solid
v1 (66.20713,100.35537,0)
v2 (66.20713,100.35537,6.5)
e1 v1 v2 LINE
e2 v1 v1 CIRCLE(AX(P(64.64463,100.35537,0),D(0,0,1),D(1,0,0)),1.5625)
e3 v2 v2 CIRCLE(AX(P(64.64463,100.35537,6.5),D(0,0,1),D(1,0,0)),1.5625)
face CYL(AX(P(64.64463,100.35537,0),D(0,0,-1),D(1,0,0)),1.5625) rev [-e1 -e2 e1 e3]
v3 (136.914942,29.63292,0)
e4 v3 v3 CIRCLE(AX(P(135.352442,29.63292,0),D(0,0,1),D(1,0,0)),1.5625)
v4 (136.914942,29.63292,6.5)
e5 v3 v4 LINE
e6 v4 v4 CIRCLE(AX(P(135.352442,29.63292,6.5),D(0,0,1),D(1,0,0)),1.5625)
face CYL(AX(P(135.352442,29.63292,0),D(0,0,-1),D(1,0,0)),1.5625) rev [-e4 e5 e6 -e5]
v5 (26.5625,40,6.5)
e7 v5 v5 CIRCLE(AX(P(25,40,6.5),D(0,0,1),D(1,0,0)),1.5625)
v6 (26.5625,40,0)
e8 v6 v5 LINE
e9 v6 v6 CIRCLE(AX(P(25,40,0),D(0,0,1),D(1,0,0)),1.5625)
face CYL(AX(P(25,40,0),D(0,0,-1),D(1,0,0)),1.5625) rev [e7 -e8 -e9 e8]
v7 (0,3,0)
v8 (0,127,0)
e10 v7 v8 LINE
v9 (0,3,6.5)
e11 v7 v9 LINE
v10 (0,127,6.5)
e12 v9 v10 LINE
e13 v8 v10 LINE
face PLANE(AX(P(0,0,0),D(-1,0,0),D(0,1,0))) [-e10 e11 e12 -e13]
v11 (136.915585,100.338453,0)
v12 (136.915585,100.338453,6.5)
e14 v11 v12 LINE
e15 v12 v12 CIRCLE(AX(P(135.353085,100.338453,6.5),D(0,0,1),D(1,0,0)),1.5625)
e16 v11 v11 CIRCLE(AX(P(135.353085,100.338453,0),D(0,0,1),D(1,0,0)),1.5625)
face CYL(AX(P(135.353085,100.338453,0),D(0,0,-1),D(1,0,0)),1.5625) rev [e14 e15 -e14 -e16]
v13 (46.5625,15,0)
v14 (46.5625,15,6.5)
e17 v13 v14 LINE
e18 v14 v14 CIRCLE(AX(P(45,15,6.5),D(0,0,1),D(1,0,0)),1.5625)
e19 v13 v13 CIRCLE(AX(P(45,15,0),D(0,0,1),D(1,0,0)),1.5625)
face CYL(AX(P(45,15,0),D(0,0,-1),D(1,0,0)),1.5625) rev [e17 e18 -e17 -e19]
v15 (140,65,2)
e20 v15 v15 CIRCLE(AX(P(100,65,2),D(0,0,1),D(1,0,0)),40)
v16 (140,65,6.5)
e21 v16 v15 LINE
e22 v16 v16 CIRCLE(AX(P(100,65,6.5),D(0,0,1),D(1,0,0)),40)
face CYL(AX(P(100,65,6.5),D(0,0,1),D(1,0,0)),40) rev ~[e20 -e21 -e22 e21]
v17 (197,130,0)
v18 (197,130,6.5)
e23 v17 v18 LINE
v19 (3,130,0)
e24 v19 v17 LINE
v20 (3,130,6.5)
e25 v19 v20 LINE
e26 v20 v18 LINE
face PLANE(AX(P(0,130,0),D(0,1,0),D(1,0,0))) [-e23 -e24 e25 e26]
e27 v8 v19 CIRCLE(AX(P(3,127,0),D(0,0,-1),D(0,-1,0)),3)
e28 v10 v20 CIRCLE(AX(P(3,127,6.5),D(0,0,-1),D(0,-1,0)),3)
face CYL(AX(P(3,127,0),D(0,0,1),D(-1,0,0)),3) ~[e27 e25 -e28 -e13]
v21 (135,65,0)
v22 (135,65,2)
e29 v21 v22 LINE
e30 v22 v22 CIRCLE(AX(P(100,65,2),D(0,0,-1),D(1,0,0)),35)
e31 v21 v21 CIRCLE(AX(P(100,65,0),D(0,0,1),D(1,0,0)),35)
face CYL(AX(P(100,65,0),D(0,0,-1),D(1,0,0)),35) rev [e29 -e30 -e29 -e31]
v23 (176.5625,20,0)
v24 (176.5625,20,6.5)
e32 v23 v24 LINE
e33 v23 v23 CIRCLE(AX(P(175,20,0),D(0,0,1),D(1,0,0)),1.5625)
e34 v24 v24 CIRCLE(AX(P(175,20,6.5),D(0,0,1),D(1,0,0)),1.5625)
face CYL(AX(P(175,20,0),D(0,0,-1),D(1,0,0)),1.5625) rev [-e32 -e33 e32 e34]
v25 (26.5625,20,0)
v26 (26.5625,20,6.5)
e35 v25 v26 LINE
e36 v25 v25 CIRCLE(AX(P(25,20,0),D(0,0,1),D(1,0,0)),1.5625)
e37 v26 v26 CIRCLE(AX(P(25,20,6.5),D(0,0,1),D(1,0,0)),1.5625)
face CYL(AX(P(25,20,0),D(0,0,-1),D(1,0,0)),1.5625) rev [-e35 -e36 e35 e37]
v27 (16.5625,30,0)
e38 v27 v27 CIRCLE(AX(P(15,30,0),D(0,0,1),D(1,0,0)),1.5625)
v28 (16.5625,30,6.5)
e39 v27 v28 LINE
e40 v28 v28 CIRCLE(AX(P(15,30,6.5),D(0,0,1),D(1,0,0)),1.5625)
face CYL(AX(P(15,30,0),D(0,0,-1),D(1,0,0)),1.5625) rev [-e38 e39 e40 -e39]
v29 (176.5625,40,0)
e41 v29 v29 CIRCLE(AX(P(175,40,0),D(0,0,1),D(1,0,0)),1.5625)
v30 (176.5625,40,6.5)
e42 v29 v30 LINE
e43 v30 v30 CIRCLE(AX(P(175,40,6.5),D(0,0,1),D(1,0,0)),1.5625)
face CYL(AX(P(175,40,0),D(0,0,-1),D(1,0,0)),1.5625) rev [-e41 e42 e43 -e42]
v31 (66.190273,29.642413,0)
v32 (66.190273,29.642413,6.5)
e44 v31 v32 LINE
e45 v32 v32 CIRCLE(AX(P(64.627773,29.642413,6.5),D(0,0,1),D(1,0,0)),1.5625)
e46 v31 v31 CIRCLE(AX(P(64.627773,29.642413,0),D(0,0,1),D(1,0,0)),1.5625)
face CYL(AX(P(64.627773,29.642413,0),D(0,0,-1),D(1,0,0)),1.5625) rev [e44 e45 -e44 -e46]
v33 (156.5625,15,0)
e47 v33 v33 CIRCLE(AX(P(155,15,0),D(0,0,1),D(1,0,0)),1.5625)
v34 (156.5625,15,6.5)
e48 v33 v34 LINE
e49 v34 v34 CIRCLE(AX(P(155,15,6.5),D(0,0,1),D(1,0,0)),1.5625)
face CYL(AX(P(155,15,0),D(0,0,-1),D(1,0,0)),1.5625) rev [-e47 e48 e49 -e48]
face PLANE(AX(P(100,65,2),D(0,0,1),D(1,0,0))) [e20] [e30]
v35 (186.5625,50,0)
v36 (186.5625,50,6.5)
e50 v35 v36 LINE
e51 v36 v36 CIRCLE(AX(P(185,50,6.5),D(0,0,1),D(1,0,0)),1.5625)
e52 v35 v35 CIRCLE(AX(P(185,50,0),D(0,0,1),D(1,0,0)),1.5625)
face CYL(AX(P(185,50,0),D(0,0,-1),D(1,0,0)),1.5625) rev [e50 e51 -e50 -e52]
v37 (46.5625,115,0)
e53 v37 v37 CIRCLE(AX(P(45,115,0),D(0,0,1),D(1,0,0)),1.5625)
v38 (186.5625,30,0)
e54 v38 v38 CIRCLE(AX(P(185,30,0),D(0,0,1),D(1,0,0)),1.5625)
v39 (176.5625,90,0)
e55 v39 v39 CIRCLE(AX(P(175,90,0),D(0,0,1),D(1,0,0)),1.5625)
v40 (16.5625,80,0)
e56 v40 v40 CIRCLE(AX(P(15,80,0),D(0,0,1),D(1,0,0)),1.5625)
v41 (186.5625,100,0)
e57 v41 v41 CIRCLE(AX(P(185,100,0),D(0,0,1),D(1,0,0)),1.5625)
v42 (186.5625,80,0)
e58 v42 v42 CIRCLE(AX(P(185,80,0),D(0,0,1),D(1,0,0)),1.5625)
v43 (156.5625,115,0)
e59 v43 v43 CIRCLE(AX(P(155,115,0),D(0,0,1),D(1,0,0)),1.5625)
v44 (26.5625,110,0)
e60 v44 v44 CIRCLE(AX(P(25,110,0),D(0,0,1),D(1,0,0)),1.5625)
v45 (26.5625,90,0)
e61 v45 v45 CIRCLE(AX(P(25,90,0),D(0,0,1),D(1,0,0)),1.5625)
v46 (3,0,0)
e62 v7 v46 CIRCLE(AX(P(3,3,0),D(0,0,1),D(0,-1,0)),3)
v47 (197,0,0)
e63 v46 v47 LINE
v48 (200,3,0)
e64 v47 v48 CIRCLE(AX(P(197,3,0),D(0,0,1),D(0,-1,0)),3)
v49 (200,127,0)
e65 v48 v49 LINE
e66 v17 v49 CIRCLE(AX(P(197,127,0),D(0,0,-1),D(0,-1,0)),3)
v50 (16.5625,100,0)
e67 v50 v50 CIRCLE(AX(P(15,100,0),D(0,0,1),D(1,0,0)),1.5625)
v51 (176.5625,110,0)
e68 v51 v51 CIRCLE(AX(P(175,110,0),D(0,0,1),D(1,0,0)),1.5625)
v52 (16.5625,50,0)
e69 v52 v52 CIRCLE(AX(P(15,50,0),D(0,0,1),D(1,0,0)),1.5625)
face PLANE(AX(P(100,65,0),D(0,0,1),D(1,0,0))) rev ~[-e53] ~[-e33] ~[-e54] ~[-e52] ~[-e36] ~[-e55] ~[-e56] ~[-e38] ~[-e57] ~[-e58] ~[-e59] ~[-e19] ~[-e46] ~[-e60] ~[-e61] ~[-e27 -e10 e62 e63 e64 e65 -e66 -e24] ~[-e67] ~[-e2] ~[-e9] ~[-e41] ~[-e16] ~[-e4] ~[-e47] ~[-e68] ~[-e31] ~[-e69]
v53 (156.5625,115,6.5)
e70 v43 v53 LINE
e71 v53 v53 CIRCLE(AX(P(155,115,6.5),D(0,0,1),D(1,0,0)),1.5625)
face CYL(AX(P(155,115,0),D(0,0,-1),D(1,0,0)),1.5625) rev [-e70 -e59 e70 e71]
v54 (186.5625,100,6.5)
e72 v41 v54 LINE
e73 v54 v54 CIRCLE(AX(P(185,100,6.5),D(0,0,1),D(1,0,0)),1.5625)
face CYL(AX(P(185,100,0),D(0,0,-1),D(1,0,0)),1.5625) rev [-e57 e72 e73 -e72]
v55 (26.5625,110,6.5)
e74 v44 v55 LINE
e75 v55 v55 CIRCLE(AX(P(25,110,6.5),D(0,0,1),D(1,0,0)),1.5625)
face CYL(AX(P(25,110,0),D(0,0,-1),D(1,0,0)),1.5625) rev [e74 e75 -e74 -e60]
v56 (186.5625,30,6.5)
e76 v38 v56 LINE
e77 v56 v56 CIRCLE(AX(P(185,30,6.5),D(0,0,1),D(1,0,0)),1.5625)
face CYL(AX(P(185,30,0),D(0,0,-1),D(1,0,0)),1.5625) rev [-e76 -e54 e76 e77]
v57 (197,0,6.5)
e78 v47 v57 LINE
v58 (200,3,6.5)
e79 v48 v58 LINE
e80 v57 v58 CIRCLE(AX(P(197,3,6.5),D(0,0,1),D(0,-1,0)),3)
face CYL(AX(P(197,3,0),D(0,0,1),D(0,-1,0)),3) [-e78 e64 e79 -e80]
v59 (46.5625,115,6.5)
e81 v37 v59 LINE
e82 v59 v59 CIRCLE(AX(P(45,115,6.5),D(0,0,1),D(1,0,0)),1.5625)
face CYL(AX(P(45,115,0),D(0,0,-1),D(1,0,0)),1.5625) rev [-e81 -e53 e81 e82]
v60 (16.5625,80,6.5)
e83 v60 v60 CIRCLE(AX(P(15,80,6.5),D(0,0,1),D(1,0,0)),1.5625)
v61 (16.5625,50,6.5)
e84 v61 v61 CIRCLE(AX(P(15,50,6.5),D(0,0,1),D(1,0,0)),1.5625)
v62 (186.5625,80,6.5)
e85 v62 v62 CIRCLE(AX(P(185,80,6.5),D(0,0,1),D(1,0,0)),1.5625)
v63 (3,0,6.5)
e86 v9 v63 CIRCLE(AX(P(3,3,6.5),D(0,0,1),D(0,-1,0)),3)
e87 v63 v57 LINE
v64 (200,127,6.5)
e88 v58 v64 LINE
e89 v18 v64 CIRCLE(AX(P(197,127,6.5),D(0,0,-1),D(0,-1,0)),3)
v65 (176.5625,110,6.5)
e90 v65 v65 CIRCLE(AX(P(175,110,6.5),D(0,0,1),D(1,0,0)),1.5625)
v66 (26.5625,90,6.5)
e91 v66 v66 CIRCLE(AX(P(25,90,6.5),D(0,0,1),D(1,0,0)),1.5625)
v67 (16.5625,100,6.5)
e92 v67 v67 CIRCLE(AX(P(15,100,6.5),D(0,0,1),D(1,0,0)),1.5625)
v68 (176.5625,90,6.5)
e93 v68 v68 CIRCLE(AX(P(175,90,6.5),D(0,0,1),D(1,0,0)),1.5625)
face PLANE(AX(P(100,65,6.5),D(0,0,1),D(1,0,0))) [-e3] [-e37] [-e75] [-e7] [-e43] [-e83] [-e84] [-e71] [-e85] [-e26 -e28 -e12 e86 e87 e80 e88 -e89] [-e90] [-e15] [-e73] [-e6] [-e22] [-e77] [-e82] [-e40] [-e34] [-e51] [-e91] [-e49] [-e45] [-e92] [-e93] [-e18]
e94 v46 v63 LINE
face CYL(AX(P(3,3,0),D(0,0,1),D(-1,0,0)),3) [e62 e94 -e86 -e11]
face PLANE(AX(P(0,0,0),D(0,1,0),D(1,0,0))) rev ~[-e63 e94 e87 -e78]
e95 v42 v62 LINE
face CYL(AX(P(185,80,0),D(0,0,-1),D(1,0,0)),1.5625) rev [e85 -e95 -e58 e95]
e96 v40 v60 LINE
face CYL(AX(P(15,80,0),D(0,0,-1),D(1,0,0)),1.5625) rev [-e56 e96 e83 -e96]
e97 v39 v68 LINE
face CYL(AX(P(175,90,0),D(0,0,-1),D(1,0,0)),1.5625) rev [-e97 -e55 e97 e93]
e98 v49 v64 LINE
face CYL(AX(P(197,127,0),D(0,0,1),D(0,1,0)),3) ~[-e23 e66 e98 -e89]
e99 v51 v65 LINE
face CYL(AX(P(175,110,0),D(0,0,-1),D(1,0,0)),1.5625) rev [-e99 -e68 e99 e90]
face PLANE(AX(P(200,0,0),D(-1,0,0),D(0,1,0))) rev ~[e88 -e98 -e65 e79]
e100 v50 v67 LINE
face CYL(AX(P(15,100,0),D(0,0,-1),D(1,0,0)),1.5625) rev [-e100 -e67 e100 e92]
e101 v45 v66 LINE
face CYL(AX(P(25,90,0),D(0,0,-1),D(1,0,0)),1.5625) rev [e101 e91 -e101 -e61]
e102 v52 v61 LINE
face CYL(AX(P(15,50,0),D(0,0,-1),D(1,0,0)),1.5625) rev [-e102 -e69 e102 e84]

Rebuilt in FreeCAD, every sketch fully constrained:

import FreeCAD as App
import Part
import Sketcher

V = App.Vector
Q = App.Units.Quantity


def edges_at(feature, points):
    """Names of the edges that pass closest to the given points."""
    edges = feature.Shape.Edges
    near = lambda p: min(range(len(edges)), key=lambda i: edges[i].distToShape(Part.Vertex(*p))[0])
    return sorted({f"Edge{near(p) + 1}" for p in points})


def add_polygon(sketch, points):
    """Adds a closed chain of lines whose ends are joined by coincident constraints."""
    first, n = sketch.GeometryCount, len(points)
    for a, b in zip(points, points[1:] + points[:1]):
        sketch.addGeometry(Part.LineSegment(App.Vector(*a, 0), App.Vector(*b, 0)), False)
    for i in range(n):
        sketch.addConstraint(Sketcher.Constraint("Coincident", first + i, 2, first + (i + 1) % n, 1))

doc = App.newDocument("Part")
body = doc.addObject("PartDesign::Body", "Body")

# Sketch on XY plane
sketch1 = doc.addObject("Sketcher::SketchObject", "Sketch")
body.addObject(sketch1)
sketch1.AttachmentSupport = (doc.XY_Plane, [""])
sketch1.MapMode = "FlatFace"
add_polygon(sketch1, [(0, 130), (0, 0), (200, 0), (200, 130)])  # lines 0-3
sketch1.addGeometry(Part.Circle(V(25, 20, 0), V(0, 0, 1), 1.5625), False)  # 4
sketch1.addGeometry(Part.Circle(V(45, 15, 0), V(0, 0, 1), 1.5625), False)  # 5
sketch1.addGeometry(Part.Circle(V(15, 30, 0), V(0, 0, 1), 1.5625), False)  # 6
sketch1.addGeometry(Part.Circle(V(64.627773, 29.642413, 0), V(0, 0, 1), 1.5625), False)  # 7
sketch1.addGeometry(Part.Circle(V(25, 40, 0), V(0, 0, 1), 1.5625), False)  # 8
sketch1.addGeometry(Part.Circle(V(15, 50, 0), V(0, 0, 1), 1.5625), False)  # 9
sketch1.addGeometry(Part.Circle(V(135.352442, 29.63292, 0), V(0, 0, 1), 1.5625), False)  # 10
sketch1.addGeometry(Part.Circle(V(155, 15, 0), V(0, 0, 1), 1.5625), False)  # 11
sketch1.addGeometry(Part.Circle(V(175, 20, 0), V(0, 0, 1), 1.5625), False)  # 12
sketch1.addGeometry(Part.Circle(V(185, 30, 0), V(0, 0, 1), 1.5625), False)  # 13
sketch1.addGeometry(Part.Circle(V(175, 40, 0), V(0, 0, 1), 1.5625), False)  # 14
sketch1.addGeometry(Part.Circle(V(185, 50, 0), V(0, 0, 1), 1.5625), False)  # 15
sketch1.addGeometry(Part.Circle(V(15, 80, 0), V(0, 0, 1), 1.5625), False)  # 16
sketch1.addGeometry(Part.Circle(V(25, 90, 0), V(0, 0, 1), 1.5625), False)  # 17
sketch1.addGeometry(Part.Circle(V(15, 100, 0), V(0, 0, 1), 1.5625), False)  # 18
sketch1.addGeometry(Part.Circle(V(25, 110, 0), V(0, 0, 1), 1.5625), False)  # 19
sketch1.addGeometry(Part.Circle(V(45, 115, 0), V(0, 0, 1), 1.5625), False)  # 20
sketch1.addGeometry(Part.Circle(V(64.64463, 100.35537, 0), V(0, 0, 1), 1.5625), False)  # 21
sketch1.addGeometry(Part.Circle(V(100, 65, 0), V(0, 0, 1), 35), False)  # 22
sketch1.addGeometry(Part.Circle(V(185, 80, 0), V(0, 0, 1), 1.5625), False)  # 23
sketch1.addGeometry(Part.Circle(V(175, 90, 0), V(0, 0, 1), 1.5625), False)  # 24
sketch1.addGeometry(Part.Circle(V(135.353085, 100.338453, 0), V(0, 0, 1), 1.5625), False)  # 25
sketch1.addGeometry(Part.Circle(V(185, 100, 0), V(0, 0, 1), 1.5625), False)  # 26
sketch1.addGeometry(Part.Circle(V(155, 115, 0), V(0, 0, 1), 1.5625), False)  # 27
sketch1.addGeometry(Part.Circle(V(175, 110, 0), V(0, 0, 1), 1.5625), False)  # 28
sketch1.addConstraint(Sketcher.Constraint("Vertical", 0))
sketch1.addConstraint(Sketcher.Constraint("Horizontal", 1))
sketch1.addConstraint(Sketcher.Constraint("Vertical", 2))
sketch1.addConstraint(Sketcher.Constraint("Horizontal", 3))
sketch1.addConstraint(Sketcher.Constraint("Coincident", 0, 2, -1, 1))
sketch1.addConstraint(Sketcher.Constraint("Equal", 4, 5))
sketch1.addConstraint(Sketcher.Constraint("Equal", 5, 6))
sketch1.addConstraint(Sketcher.Constraint("Equal", 6, 7))
sketch1.addConstraint(Sketcher.Constraint("Equal", 7, 8))
sketch1.addConstraint(Sketcher.Constraint("Equal", 8, 9))
sketch1.addConstraint(Sketcher.Constraint("Equal", 9, 10))
sketch1.addConstraint(Sketcher.Constraint("Equal", 10, 11))
sketch1.addConstraint(Sketcher.Constraint("Equal", 11, 12))
sketch1.addConstraint(Sketcher.Constraint("Equal", 12, 13))
sketch1.addConstraint(Sketcher.Constraint("Equal", 13, 14))
sketch1.addConstraint(Sketcher.Constraint("Equal", 14, 15))
sketch1.addConstraint(Sketcher.Constraint("Equal", 15, 16))
sketch1.addConstraint(Sketcher.Constraint("Equal", 16, 17))
sketch1.addConstraint(Sketcher.Constraint("Equal", 17, 18))
sketch1.addConstraint(Sketcher.Constraint("Equal", 18, 19))
sketch1.addConstraint(Sketcher.Constraint("Equal", 19, 20))
sketch1.addConstraint(Sketcher.Constraint("Equal", 20, 21))
sketch1.addConstraint(Sketcher.Constraint("Equal", 21, 23))
sketch1.addConstraint(Sketcher.Constraint("Equal", 23, 24))
sketch1.addConstraint(Sketcher.Constraint("Equal", 24, 25))
sketch1.addConstraint(Sketcher.Constraint("Equal", 25, 26))
sketch1.addConstraint(Sketcher.Constraint("Equal", 26, 27))
sketch1.addConstraint(Sketcher.Constraint("Equal", 27, 28))
sketch1.addConstraint(Sketcher.Constraint("Horizontal", 5, 3, 11, 3))
sketch1.addConstraint(Sketcher.Constraint("Horizontal", 4, 3, 12, 3))
sketch1.addConstraint(Sketcher.Constraint("Horizontal", 6, 3, 13, 3))
sketch1.addConstraint(Sketcher.Constraint("Horizontal", 8, 3, 14, 3))
sketch1.addConstraint(Sketcher.Constraint("Horizontal", 9, 3, 15, 3))
sketch1.addConstraint(Sketcher.Constraint("Horizontal", 16, 3, 23, 3))
sketch1.addConstraint(Sketcher.Constraint("Horizontal", 17, 3, 24, 3))
sketch1.addConstraint(Sketcher.Constraint("Horizontal", 18, 3, 26, 3))
sketch1.addConstraint(Sketcher.Constraint("Horizontal", 20, 3, 27, 3))
sketch1.addConstraint(Sketcher.Constraint("Horizontal", 19, 3, 28, 3))
sketch1.addConstraint(Sketcher.Constraint("Vertical", 4, 3, 8, 3))
sketch1.addConstraint(Sketcher.Constraint("Vertical", 6, 3, 9, 3))
sketch1.addConstraint(Sketcher.Constraint("Vertical", 12, 3, 14, 3))
sketch1.addConstraint(Sketcher.Constraint("Vertical", 13, 3, 15, 3))
sketch1.addConstraint(Sketcher.Constraint("Vertical", 9, 3, 16, 3))
sketch1.addConstraint(Sketcher.Constraint("Vertical", 8, 3, 17, 3))
sketch1.addConstraint(Sketcher.Constraint("Vertical", 16, 3, 18, 3))
sketch1.addConstraint(Sketcher.Constraint("Vertical", 17, 3, 19, 3))
sketch1.addConstraint(Sketcher.Constraint("Vertical", 5, 3, 20, 3))
sketch1.addConstraint(Sketcher.Constraint("Vertical", 15, 3, 23, 3))
sketch1.addConstraint(Sketcher.Constraint("Vertical", 14, 3, 24, 3))
sketch1.addConstraint(Sketcher.Constraint("Vertical", 23, 3, 26, 3))
sketch1.addConstraint(Sketcher.Constraint("Vertical", 11, 3, 27, 3))
sketch1.addConstraint(Sketcher.Constraint("Vertical", 24, 3, 28, 3))
sketch1.addConstraint(Sketcher.Constraint("Diameter", 22, Q("70 mm")))
sketch1.addConstraint(Sketcher.Constraint("DistanceX", 1, 1, 1, 2, Q("200 mm")))
sketch1.addConstraint(Sketcher.Constraint("DistanceY", 0, 2, 0, 1, Q("130 mm")))
sketch1.addConstraint(Sketcher.Constraint("Diameter", 4, Q("3.125 mm")))
sketch1.addConstraint(Sketcher.Constraint("DistanceX", -1, 1, 4, 3, Q("25 mm")))
sketch1.addConstraint(Sketcher.Constraint("DistanceY", -1, 1, 4, 3, Q("20 mm")))
sketch1.addConstraint(Sketcher.Constraint("DistanceX", -1, 1, 5, 3, Q("45 mm")))
sketch1.addConstraint(Sketcher.Constraint("DistanceY", -1, 1, 5, 3, Q("15 mm")))
sketch1.addConstraint(Sketcher.Constraint("DistanceX", -1, 1, 6, 3, Q("15 mm")))
sketch1.addConstraint(Sketcher.Constraint("DistanceY", -1, 1, 6, 3, Q("30 mm")))
sketch1.addConstraint(Sketcher.Constraint("DistanceY", -1, 1, 8, 3, Q("40 mm")))
sketch1.addConstraint(Sketcher.Constraint("DistanceY", -1, 1, 9, 3, Q("50 mm")))
sketch1.addConstraint(Sketcher.Constraint("DistanceX", -1, 1, 11, 3, Q("155 mm")))
sketch1.addConstraint(Sketcher.Constraint("DistanceX", -1, 1, 12, 3, Q("175 mm")))
sketch1.addConstraint(Sketcher.Constraint("DistanceX", -1, 1, 13, 3, Q("185 mm")))
sketch1.addConstraint(Sketcher.Constraint("DistanceY", -1, 1, 16, 3, Q("80 mm")))
sketch1.addConstraint(Sketcher.Constraint("DistanceY", -1, 1, 17, 3, Q("90 mm")))
sketch1.addConstraint(Sketcher.Constraint("DistanceY", -1, 1, 18, 3, Q("100 mm")))
sketch1.addConstraint(Sketcher.Constraint("DistanceY", -1, 1, 19, 3, Q("110 mm")))
sketch1.addConstraint(Sketcher.Constraint("DistanceY", -1, 1, 20, 3, Q("115 mm")))
sketch1.addConstraint(Sketcher.Constraint("DistanceX", -1, 1, 22, 3, Q("100 mm")))
sketch1.addConstraint(Sketcher.Constraint("DistanceY", -1, 1, 22, 3, Q("65 mm")))
sketch1.addConstraint(Sketcher.Constraint("DistanceX", -1, 1, 10, 3, Q("135.352442 mm")))
sketch1.addConstraint(Sketcher.Constraint("DistanceY", -1, 1, 10, 3, Q("29.63292 mm")))
sketch1.addConstraint(Sketcher.Constraint("DistanceX", -1, 1, 21, 3, Q("64.64463 mm")))
sketch1.addConstraint(Sketcher.Constraint("DistanceY", -1, 1, 21, 3, Q("100.35537 mm")))
sketch1.addConstraint(Sketcher.Constraint("DistanceX", 7, 3, 10, 3, Q("70.724669 mm")))
sketch1.addConstraint(Sketcher.Constraint("DistanceY", -1, 1, 7, 3, Q("29.642413 mm")))
sketch1.addConstraint(Sketcher.Constraint("DistanceX", -1, 1, 25, 3, Q("135.353085 mm")))
sketch1.addConstraint(Sketcher.Constraint("DistanceY", -1, 1, 25, 3, Q("100.338453 mm")))
pad1 = doc.addObject("PartDesign::Pad", "Pad")
body.addObject(pad1)
pad1.Profile = sketch1
pad1.Length = 6.5

# Sketch on XY plane
sketch2 = doc.addObject("Sketcher::SketchObject", "Sketch001")
body.addObject(sketch2)
sketch2.AttachmentSupport = (doc.XY_Plane, [""])
sketch2.MapMode = "FlatFace"
sketch2.AttachmentOffset = App.Placement(V(0, 0, 6.5), App.Rotation())
sketch2.addGeometry(Part.Circle(V(100, 65, 0), V(0, 0, 1), 40), False)
sketch2.addConstraint(Sketcher.Constraint("Diameter", 0, Q("80 mm")))
sketch2.addConstraint(Sketcher.Constraint("DistanceX", -1, 1, 0, 3, Q("100 mm")))
sketch2.addConstraint(Sketcher.Constraint("DistanceY", -1, 1, 0, 3, Q("65 mm")))
pocket1 = doc.addObject("PartDesign::Pocket", "Pocket")
body.addObject(pocket1)
pocket1.Profile = sketch2
pocket1.Length = 4.5
doc.recompute()

fillet = doc.addObject("PartDesign::Fillet", "Fillet")
body.addObject(fillet)
fillet.Base = (pocket1, edges_at(pocket1, [
    (200, 0, 3.25),
    (200, 130, 3.25),
    (0, 0, 3.25),
    (0, 130, 3.25),
]))
fillet.Radius = 3

doc.recompute()
